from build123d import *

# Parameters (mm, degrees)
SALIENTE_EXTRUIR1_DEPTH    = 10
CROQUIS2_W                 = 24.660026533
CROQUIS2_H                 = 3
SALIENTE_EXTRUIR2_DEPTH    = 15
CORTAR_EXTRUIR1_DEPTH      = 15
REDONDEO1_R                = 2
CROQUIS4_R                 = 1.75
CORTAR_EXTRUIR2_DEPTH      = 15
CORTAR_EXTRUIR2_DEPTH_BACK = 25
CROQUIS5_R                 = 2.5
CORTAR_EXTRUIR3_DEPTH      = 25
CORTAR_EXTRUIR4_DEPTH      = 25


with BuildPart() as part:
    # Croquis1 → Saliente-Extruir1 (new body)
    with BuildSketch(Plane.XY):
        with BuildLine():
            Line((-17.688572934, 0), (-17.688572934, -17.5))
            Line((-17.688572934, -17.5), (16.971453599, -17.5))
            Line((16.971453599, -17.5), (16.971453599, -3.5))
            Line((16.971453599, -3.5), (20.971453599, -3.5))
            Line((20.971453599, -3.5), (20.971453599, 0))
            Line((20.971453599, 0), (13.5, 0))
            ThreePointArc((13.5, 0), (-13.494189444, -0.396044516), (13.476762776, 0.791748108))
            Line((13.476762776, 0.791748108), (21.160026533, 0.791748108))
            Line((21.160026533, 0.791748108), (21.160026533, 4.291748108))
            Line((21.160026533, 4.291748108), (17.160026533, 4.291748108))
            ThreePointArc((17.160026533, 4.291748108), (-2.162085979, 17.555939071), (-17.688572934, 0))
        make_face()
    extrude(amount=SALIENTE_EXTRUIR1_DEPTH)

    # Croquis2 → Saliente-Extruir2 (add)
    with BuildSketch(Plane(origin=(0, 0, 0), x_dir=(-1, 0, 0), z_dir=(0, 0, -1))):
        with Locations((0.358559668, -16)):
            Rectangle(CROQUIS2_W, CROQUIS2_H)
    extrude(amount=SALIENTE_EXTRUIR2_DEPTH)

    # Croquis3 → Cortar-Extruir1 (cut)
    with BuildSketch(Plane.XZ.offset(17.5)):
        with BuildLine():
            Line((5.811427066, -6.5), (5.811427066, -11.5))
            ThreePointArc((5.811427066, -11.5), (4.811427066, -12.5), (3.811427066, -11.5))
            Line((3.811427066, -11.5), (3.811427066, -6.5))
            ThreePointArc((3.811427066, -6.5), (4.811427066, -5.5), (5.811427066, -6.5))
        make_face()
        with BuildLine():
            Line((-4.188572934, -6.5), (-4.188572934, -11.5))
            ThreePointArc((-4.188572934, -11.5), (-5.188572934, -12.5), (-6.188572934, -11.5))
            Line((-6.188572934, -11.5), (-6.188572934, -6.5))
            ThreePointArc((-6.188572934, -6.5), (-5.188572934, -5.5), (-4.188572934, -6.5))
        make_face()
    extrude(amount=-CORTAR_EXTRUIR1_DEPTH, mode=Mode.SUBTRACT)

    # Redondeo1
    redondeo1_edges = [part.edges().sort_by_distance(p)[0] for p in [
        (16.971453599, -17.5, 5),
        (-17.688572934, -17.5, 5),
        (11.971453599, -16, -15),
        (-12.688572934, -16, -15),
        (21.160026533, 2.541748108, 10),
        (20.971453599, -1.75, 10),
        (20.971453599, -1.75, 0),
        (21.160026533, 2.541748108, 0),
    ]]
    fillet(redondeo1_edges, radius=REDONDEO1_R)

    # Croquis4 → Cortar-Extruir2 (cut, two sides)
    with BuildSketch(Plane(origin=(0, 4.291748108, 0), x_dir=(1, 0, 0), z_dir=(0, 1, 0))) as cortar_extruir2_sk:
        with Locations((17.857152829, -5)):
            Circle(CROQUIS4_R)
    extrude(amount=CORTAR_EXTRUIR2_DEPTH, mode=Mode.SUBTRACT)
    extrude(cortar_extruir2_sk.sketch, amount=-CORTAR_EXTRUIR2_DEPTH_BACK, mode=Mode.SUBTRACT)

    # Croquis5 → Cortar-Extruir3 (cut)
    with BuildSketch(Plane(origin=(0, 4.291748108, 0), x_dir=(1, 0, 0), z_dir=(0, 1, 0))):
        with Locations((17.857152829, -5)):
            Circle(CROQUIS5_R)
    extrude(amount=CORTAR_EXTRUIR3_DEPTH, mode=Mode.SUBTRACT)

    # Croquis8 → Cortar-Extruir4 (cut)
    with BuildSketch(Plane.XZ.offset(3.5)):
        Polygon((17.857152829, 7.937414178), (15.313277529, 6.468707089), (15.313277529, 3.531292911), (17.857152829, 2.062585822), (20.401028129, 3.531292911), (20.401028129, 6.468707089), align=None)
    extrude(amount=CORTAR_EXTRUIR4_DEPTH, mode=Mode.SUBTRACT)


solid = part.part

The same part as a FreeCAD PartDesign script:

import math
import FreeCAD as App
import Part
import Sketcher
from FreeCAD import Vector
Q = App.Units.Quantity


def edges_at(feature, points):
    """Names of the edges that pass closest to the given points."""
    edges = feature.Shape.Edges
    near = lambda p: min(range(len(edges)), key=lambda i: edges[i].distToShape(Part.Vertex(*p))[0])
    return sorted({f"Edge{near(p) + 1}" for p in points})


def add_polygon(sketch, points):
    """Adds a closed chain of lines whose ends are joined by coincident constraints."""
    first, n = sketch.GeometryCount, len(points)
    for a, b in zip(points, points[1:] + points[:1]):
        sketch.addGeometry(Part.LineSegment(App.Vector(*a, 0), App.Vector(*b, 0)), False)
    for i in range(n):
        sketch.addConstraint(Sketcher.Constraint("Coincident", first + i, 2, first + (i + 1) % n, 1))

doc = App.newDocument("Part")
params = doc.addObject("Spreadsheet::Sheet", "Params")
for row, (alias, value) in enumerate([
    ("sketch1_radius", "13.5 mm"),
    ("sketch1_width", "4 mm"),
    ("sketch1_height", "14 mm"),
    ("sketch1_height2", "17.5 mm"),
    ("pad1_length", "10 mm"),
    ("sketch2_height", "3 mm"),
    ("pad2_length", "15 mm"),
    ("sketch3_radius", "1 mm"),
    ("sketch3_height", "5 mm"),
    ("pocket1_length", "15 mm"),
    ("fillet_radius", "2 mm"),
    ("sketch4_diameter", "3.5 mm"),
    ("sketch5_diameter", "5 mm"),
    ("pocket3_length", "25 mm"),
    ("pocket4_length", "25 mm"),
], start=1):
    params.set(f"A{row}", alias)
    params.set(f"B{row}", "=" + value)
    params.setAlias(f"B{row}", alias)

body = doc.addObject("PartDesign::Body", "Body")

# Sketch on XY plane
sketch1 = body.newObject("Sketcher::SketchObject", "Sketch")
sketch1.AttachmentSupport = (doc.getObject("XY_Plane"), [""])
sketch1.MapMode = "FlatFace"
sketch1.addGeometry([
    Part.LineSegment(Vector(-17.7, 0, 0), Vector(-17.7, -17.5, 0)),  # 0
    Part.LineSegment(Vector(-17.7, -17.5, 0), Vector(17, -17.5, 0)),  # 1
    Part.LineSegment(Vector(17, -17.5, 0), Vector(17, -3.5, 0)),  # 2
    Part.LineSegment(Vector(17, -3.5, 0), Vector(21, -3.5, 0)),  # 3
    Part.LineSegment(Vector(21, -3.5, 0), Vector(21, 0, 0)),  # 4
    Part.LineSegment(Vector(21, 0, 0), Vector(13.5, 0, 0)),  # 5
    Part.ArcOfCircle(Part.Circle(Vector(0, 0, 0), Vector(0, 0, 1), 13.5), math.radians(3), math.radians(360)),  # 6
    Part.LineSegment(Vector(13.5, 0.8, 0), Vector(21.2, 0.8, 0)),  # 7
    Part.LineSegment(Vector(21.2, 0.8, 0), Vector(21.2, 4.3, 0)),  # 8
    Part.LineSegment(Vector(21.2, 4.3, 0), Vector(17.2, 4.3, 0)),  # 9
    Part.ArcOfCircle(Part.Circle(Vector(0, 0, 0), Vector(0, 0, 1), 17.7), math.radians(14), math.radians(180)),  # 10
], False)
sketch1.addConstraint([
    Sketcher.Constraint("Coincident", 0, 2, 1, 1),
    Sketcher.Constraint("Coincident", 1, 2, 2, 1),
    Sketcher.Constraint("Coincident", 2, 2, 3, 1),
    Sketcher.Constraint("Coincident", 3, 2, 4, 1),
    Sketcher.Constraint("Coincident", 4, 2, 5, 1),
    Sketcher.Constraint("Coincident", 5, 2, 6, 2),
    Sketcher.Constraint("Coincident", 6, 1, 7, 1),
    Sketcher.Constraint("Coincident", 7, 2, 8, 1),
    Sketcher.Constraint("Coincident", 8, 2, 9, 1),
    Sketcher.Constraint("Coincident", 9, 2, 10, 1),
    Sketcher.Constraint("Tangent", 10, 2, 0, 1),
    Sketcher.Constraint("Vertical", 0),
    Sketcher.Constraint("Horizontal", 1),
    Sketcher.Constraint("Vertical", 2),
    Sketcher.Constraint("Horizontal", 3),
    Sketcher.Constraint("Vertical", 4),
    Sketcher.Constraint("Horizontal", 5),
    Sketcher.Constraint("Horizontal", 7),
    Sketcher.Constraint("Vertical", 8),
    Sketcher.Constraint("Horizontal", 9),
    Sketcher.Constraint("Coincident", 6, 3, -1, 1),
    Sketcher.Constraint("Coincident", 10, 3, -1, 1),
    Sketcher.Constraint("PointOnObject", 4, 2, -1),
    Sketcher.Constraint("Equal", 3, 9),
    Sketcher.Constraint("Equal", 4, 8),
    Sketcher.Constraint("Radius", 6, 13.5),
    Sketcher.Constraint("DistanceX", 3, 1, 3, 2, 4.0),
    Sketcher.Constraint("DistanceY", 2, 1, 2, 2, 14.0),
    Sketcher.Constraint("DistanceY", 0, 2, 0, 1, 17.5),
    Sketcher.Constraint("Radius", 10, 17.688573),
    Sketcher.Constraint("DistanceX", 1, 1, 1, 2, 34.660027),
    Sketcher.Constraint("DistanceX", 7, 1, 7, 2, 7.683264),
])
sketch1.setExpression("Constraints[25]", "Params.sketch1_radius")
sketch1.setExpression("Constraints[26]", "Params.sketch1_width")
sketch1.setExpression("Constraints[27]", "Params.sketch1_height")
sketch1.setExpression("Constraints[28]", "Params.sketch1_height2")
pad1 = body.newObject("PartDesign::Pad", "Pad")
pad1.Profile = sketch1
pad1.setExpression("Length", "Params.pad1_length")

# Sketch on XY plane
sketch2 = body.newObject("Sketcher::SketchObject", "Sketch001")
sketch2.AttachmentSupport = (doc.getObject("XY_Plane"), [""])
sketch2.MapMode = "FlatFace"
add_polygon(sketch2, [(12, -14.5), (12, -17.5), (-12.7, -17.5), (-12.7, -14.5)])  # lines 0-3
sketch2.addConstraint([
    Sketcher.Constraint("Vertical", 0),
    Sketcher.Constraint("Horizontal", 1),
    Sketcher.Constraint("Vertical", 2),
    Sketcher.Constraint("Horizontal", 3),
    Sketcher.Constraint("DistanceY", 0, 2, 0, 1, 3.0),
    Sketcher.Constraint("DistanceY", 0, 2, -1, 1, 17.5),
    Sketcher.Constraint("DistanceX", 1, 2, 1, 1, 24.660027),
    Sketcher.Constraint("DistanceX", -1, 1, 0, 2, 11.971454),
])
sketch2.setExpression("Constraints[8]", "Params.sketch2_height")
pad2 = body.newObject("PartDesign::Pad", "Pad001")
pad2.Profile = sketch2
pad2.setExpression("Length", "Params.pad2_length")
pad2.Reversed = True

# Sketch on XZ plane
sketch3 = body.newObject("Sketcher::SketchObject", "Sketch002")
sketch3.AttachmentSupport = (doc.getObject("XZ_Plane"), [""])
sketch3.MapMode = "FlatFace"
sketch3.AttachmentOffset = App.Placement(Vector(0, 0, 17.5), App.Rotation())
sketch3.addGeometry([
    Part.LineSegment(Vector(5.8, -11.5, 0), Vector(5.8, -6.5, 0)),  # 0
    Part.ArcOfCircle(Part.Circle(Vector(4.8, -6.5, 0), Vector(0, 0, 1), 1), math.radians(0), math.radians(180)),  # 1
    Part.LineSegment(Vector(3.8, -6.5, 0), Vector(3.8, -11.5, 0)),  # 2
    Part.ArcOfCircle(Part.Circle(Vector(4.8, -11.5, 0), Vector(0, 0, 1), 1), math.radians(180), math.radians(360)),  # 3
    Part.LineSegment(Vector(-4.2, -11.5, 0), Vector(-4.2, -6.5, 0)),  # 4
    Part.ArcOfCircle(Part.Circle(Vector(-5.2, -6.5, 0), Vector(0, 0, 1), 1), math.radians(0), math.radians(180)),  # 5
    Part.LineSegment(Vector(-6.2, -6.5, 0), Vector(-6.2, -11.5, 0)),  # 6
    Part.ArcOfCircle(Part.Circle(Vector(-5.2, -11.5, 0), Vector(0, 0, 1), 1), math.radians(180), math.radians(360)),  # 7
], False)
sketch3.addConstraint([
    Sketcher.Constraint("Tangent", 0, 2, 1, 1),
    Sketcher.Constraint("Tangent", 1, 2, 2, 1),
    Sketcher.Constraint("Tangent", 2, 2, 3, 1),
    Sketcher.Constraint("Tangent", 3, 2, 0, 1),
    Sketcher.Constraint("Tangent", 4, 2, 5, 1),
    Sketcher.Constraint("Tangent", 5, 2, 6, 1),
    Sketcher.Constraint("Tangent", 6, 2, 7, 1),
    Sketcher.Constraint("Tangent", 7, 2, 4, 1),
    Sketcher.Constraint("Vertical", 0),
    Sketcher.Constraint("Vertical", 2),
    Sketcher.Constraint("Vertical", 4),
    Sketcher.Constraint("Vertical", 6),
    Sketcher.Constraint("Equal", 3, 5),
    Sketcher.Constraint("Horizontal", 1, 3, 5, 3),
    Sketcher.Constraint("Horizontal", 3, 3, 7, 3),
    Sketcher.Constraint("Radius", 1, 1.0),
    Sketcher.Constraint("DistanceY", 0, 1, 0, 2, 5.0),
    Sketcher.Constraint("DistanceX", 5, 3, 1, 3, 10.0),
    Sketcher.Constraint("DistanceY", 1, 3, -1, 1, 6.5),
    Sketcher.Constraint("DistanceX", -1, 1, 1, 3, 4.811427),
])
sketch3.setExpression("Constraints[15]", "Params.sketch3_radius")
sketch3.setExpression("Constraints[16]", "Params.sketch3_height")
pocket1 = body.newObject("PartDesign::Pocket", "Pocket")
pocket1.Profile = sketch3
pocket1.setExpression("Length", "Params.pocket1_length")
doc.recompute()

fillet = body.newObject("PartDesign::Fillet", "Fillet")
fillet.Base = (pocket1, edges_at(pocket1, [
    (16.971, -17.5, 5),
    (-17.689, -17.5, 5),
    (11.971, -16, -15),
    (-12.689, -16, -15),
    (21.16, 2.542, 10),
    (20.971, -1.75, 10),
    (20.971, -1.75, 0),
    (21.16, 2.542, 0),
]))
fillet.setExpression("Radius", "Params.fillet_radius")

# Sketch on XZ plane
sketch4 = body.newObject("Sketcher::SketchObject", "Sketch003")
sketch4.AttachmentSupport = (doc.getObject("XZ_Plane"), [""])
sketch4.MapMode = "FlatFace"
sketch4.AttachmentOffset = App.Placement(Vector(0, 0, -4.291748), App.Rotation())
sketch4.addGeometry(Part.Circle(Vector(17.9, 5, 0), Vector(0, 0, 1), 1.8), False)
sketch4.addConstraint([
    Sketcher.Constraint("Diameter", 0, 3.5),
    Sketcher.Constraint("DistanceY", -1, 1, 0, 3, 5.0),
    Sketcher.Constraint("DistanceX", -1, 1, 0, 3, 17.857153),
])
sketch4.setExpression("Constraints[0]", "Params.sketch4_diameter")
pocket2 = body.newObject("PartDesign::Pocket", "Pocket001")
pocket2.Profile = sketch4
pocket2.Type = "ThroughAll"
pocket2.Midplane = True

# Sketch on XZ plane
sketch5 = body.newObject("Sketcher::SketchObject", "Sketch004")
sketch5.AttachmentSupport = (doc.getObject("XZ_Plane"), [""])
sketch5.MapMode = "FlatFace"
sketch5.AttachmentOffset = App.Placement(Vector(0, 0, -4.291748), App.Rotation())
sketch5.addGeometry(Part.Circle(Vector(17.9, 5, 0), Vector(0, 0, 1), 2.5), False)
sketch5.addConstraint([
    Sketcher.Constraint("Diameter", 0, 5.0),
    Sketcher.Constraint("DistanceY", -1, 1, 0, 3, 5.0),
    Sketcher.Constraint("DistanceX", -1, 1, 0, 3, 17.857153),
])
sketch5.setExpression("Constraints[0]", "Params.sketch5_diameter")
pocket3 = body.newObject("PartDesign::Pocket", "Pocket002")
pocket3.Profile = sketch5
pocket3.setExpression("Length", "Params.pocket3_length")

# Sketch on XZ plane
sketch6 = body.newObject("Sketcher::SketchObject", "Sketch005")
sketch6.AttachmentSupport = (doc.getObject("XZ_Plane"), [""])
sketch6.MapMode = "FlatFace"
sketch6.AttachmentOffset = App.Placement(Vector(0, 0, 3.5), App.Rotation())
add_polygon(sketch6, [(17.9, 7.9), (15.3, 6.5), (15.3, 3.5), (17.9, 2.1), (20.4, 3.5), (20.4, 6.5)])  # lines 0-5
sketch6.addConstraint([
    Sketcher.Constraint("Vertical", 1),
    Sketcher.Constraint("Vertical", 4),
    Sketcher.Constraint("Parallel", 0, 3),
    Sketcher.Constraint("Parallel", 2, 5),
    Sketcher.Constraint("Horizontal", 1, 2, 3, 2),
    Sketcher.Constraint("Horizontal", 0, 2, 4, 2),
    Sketcher.Constraint("Vertical", 2, 2, 5, 2),
    Sketcher.Constraint("Angle", 0, Q("-150 deg")),
    Sketcher.Constraint("DistanceY", 1, 2, 1, 1, 2.937414),
    Sketcher.Constraint("DistanceX", -1, 1, 3, 2, 20.401028),
    Sketcher.Constraint("DistanceY", 2, 2, 0, 2, 4.406121),
    Sketcher.Constraint("DistanceY", -1, 1, 0, 2, 6.468707),
])
pocket4 = body.newObject("PartDesign::Pocket", "Pocket003")
pocket4.Profile = sketch6
pocket4.setExpression("Length", "Params.pocket4_length")
pocket4.Reversed = True

doc.recompute()
